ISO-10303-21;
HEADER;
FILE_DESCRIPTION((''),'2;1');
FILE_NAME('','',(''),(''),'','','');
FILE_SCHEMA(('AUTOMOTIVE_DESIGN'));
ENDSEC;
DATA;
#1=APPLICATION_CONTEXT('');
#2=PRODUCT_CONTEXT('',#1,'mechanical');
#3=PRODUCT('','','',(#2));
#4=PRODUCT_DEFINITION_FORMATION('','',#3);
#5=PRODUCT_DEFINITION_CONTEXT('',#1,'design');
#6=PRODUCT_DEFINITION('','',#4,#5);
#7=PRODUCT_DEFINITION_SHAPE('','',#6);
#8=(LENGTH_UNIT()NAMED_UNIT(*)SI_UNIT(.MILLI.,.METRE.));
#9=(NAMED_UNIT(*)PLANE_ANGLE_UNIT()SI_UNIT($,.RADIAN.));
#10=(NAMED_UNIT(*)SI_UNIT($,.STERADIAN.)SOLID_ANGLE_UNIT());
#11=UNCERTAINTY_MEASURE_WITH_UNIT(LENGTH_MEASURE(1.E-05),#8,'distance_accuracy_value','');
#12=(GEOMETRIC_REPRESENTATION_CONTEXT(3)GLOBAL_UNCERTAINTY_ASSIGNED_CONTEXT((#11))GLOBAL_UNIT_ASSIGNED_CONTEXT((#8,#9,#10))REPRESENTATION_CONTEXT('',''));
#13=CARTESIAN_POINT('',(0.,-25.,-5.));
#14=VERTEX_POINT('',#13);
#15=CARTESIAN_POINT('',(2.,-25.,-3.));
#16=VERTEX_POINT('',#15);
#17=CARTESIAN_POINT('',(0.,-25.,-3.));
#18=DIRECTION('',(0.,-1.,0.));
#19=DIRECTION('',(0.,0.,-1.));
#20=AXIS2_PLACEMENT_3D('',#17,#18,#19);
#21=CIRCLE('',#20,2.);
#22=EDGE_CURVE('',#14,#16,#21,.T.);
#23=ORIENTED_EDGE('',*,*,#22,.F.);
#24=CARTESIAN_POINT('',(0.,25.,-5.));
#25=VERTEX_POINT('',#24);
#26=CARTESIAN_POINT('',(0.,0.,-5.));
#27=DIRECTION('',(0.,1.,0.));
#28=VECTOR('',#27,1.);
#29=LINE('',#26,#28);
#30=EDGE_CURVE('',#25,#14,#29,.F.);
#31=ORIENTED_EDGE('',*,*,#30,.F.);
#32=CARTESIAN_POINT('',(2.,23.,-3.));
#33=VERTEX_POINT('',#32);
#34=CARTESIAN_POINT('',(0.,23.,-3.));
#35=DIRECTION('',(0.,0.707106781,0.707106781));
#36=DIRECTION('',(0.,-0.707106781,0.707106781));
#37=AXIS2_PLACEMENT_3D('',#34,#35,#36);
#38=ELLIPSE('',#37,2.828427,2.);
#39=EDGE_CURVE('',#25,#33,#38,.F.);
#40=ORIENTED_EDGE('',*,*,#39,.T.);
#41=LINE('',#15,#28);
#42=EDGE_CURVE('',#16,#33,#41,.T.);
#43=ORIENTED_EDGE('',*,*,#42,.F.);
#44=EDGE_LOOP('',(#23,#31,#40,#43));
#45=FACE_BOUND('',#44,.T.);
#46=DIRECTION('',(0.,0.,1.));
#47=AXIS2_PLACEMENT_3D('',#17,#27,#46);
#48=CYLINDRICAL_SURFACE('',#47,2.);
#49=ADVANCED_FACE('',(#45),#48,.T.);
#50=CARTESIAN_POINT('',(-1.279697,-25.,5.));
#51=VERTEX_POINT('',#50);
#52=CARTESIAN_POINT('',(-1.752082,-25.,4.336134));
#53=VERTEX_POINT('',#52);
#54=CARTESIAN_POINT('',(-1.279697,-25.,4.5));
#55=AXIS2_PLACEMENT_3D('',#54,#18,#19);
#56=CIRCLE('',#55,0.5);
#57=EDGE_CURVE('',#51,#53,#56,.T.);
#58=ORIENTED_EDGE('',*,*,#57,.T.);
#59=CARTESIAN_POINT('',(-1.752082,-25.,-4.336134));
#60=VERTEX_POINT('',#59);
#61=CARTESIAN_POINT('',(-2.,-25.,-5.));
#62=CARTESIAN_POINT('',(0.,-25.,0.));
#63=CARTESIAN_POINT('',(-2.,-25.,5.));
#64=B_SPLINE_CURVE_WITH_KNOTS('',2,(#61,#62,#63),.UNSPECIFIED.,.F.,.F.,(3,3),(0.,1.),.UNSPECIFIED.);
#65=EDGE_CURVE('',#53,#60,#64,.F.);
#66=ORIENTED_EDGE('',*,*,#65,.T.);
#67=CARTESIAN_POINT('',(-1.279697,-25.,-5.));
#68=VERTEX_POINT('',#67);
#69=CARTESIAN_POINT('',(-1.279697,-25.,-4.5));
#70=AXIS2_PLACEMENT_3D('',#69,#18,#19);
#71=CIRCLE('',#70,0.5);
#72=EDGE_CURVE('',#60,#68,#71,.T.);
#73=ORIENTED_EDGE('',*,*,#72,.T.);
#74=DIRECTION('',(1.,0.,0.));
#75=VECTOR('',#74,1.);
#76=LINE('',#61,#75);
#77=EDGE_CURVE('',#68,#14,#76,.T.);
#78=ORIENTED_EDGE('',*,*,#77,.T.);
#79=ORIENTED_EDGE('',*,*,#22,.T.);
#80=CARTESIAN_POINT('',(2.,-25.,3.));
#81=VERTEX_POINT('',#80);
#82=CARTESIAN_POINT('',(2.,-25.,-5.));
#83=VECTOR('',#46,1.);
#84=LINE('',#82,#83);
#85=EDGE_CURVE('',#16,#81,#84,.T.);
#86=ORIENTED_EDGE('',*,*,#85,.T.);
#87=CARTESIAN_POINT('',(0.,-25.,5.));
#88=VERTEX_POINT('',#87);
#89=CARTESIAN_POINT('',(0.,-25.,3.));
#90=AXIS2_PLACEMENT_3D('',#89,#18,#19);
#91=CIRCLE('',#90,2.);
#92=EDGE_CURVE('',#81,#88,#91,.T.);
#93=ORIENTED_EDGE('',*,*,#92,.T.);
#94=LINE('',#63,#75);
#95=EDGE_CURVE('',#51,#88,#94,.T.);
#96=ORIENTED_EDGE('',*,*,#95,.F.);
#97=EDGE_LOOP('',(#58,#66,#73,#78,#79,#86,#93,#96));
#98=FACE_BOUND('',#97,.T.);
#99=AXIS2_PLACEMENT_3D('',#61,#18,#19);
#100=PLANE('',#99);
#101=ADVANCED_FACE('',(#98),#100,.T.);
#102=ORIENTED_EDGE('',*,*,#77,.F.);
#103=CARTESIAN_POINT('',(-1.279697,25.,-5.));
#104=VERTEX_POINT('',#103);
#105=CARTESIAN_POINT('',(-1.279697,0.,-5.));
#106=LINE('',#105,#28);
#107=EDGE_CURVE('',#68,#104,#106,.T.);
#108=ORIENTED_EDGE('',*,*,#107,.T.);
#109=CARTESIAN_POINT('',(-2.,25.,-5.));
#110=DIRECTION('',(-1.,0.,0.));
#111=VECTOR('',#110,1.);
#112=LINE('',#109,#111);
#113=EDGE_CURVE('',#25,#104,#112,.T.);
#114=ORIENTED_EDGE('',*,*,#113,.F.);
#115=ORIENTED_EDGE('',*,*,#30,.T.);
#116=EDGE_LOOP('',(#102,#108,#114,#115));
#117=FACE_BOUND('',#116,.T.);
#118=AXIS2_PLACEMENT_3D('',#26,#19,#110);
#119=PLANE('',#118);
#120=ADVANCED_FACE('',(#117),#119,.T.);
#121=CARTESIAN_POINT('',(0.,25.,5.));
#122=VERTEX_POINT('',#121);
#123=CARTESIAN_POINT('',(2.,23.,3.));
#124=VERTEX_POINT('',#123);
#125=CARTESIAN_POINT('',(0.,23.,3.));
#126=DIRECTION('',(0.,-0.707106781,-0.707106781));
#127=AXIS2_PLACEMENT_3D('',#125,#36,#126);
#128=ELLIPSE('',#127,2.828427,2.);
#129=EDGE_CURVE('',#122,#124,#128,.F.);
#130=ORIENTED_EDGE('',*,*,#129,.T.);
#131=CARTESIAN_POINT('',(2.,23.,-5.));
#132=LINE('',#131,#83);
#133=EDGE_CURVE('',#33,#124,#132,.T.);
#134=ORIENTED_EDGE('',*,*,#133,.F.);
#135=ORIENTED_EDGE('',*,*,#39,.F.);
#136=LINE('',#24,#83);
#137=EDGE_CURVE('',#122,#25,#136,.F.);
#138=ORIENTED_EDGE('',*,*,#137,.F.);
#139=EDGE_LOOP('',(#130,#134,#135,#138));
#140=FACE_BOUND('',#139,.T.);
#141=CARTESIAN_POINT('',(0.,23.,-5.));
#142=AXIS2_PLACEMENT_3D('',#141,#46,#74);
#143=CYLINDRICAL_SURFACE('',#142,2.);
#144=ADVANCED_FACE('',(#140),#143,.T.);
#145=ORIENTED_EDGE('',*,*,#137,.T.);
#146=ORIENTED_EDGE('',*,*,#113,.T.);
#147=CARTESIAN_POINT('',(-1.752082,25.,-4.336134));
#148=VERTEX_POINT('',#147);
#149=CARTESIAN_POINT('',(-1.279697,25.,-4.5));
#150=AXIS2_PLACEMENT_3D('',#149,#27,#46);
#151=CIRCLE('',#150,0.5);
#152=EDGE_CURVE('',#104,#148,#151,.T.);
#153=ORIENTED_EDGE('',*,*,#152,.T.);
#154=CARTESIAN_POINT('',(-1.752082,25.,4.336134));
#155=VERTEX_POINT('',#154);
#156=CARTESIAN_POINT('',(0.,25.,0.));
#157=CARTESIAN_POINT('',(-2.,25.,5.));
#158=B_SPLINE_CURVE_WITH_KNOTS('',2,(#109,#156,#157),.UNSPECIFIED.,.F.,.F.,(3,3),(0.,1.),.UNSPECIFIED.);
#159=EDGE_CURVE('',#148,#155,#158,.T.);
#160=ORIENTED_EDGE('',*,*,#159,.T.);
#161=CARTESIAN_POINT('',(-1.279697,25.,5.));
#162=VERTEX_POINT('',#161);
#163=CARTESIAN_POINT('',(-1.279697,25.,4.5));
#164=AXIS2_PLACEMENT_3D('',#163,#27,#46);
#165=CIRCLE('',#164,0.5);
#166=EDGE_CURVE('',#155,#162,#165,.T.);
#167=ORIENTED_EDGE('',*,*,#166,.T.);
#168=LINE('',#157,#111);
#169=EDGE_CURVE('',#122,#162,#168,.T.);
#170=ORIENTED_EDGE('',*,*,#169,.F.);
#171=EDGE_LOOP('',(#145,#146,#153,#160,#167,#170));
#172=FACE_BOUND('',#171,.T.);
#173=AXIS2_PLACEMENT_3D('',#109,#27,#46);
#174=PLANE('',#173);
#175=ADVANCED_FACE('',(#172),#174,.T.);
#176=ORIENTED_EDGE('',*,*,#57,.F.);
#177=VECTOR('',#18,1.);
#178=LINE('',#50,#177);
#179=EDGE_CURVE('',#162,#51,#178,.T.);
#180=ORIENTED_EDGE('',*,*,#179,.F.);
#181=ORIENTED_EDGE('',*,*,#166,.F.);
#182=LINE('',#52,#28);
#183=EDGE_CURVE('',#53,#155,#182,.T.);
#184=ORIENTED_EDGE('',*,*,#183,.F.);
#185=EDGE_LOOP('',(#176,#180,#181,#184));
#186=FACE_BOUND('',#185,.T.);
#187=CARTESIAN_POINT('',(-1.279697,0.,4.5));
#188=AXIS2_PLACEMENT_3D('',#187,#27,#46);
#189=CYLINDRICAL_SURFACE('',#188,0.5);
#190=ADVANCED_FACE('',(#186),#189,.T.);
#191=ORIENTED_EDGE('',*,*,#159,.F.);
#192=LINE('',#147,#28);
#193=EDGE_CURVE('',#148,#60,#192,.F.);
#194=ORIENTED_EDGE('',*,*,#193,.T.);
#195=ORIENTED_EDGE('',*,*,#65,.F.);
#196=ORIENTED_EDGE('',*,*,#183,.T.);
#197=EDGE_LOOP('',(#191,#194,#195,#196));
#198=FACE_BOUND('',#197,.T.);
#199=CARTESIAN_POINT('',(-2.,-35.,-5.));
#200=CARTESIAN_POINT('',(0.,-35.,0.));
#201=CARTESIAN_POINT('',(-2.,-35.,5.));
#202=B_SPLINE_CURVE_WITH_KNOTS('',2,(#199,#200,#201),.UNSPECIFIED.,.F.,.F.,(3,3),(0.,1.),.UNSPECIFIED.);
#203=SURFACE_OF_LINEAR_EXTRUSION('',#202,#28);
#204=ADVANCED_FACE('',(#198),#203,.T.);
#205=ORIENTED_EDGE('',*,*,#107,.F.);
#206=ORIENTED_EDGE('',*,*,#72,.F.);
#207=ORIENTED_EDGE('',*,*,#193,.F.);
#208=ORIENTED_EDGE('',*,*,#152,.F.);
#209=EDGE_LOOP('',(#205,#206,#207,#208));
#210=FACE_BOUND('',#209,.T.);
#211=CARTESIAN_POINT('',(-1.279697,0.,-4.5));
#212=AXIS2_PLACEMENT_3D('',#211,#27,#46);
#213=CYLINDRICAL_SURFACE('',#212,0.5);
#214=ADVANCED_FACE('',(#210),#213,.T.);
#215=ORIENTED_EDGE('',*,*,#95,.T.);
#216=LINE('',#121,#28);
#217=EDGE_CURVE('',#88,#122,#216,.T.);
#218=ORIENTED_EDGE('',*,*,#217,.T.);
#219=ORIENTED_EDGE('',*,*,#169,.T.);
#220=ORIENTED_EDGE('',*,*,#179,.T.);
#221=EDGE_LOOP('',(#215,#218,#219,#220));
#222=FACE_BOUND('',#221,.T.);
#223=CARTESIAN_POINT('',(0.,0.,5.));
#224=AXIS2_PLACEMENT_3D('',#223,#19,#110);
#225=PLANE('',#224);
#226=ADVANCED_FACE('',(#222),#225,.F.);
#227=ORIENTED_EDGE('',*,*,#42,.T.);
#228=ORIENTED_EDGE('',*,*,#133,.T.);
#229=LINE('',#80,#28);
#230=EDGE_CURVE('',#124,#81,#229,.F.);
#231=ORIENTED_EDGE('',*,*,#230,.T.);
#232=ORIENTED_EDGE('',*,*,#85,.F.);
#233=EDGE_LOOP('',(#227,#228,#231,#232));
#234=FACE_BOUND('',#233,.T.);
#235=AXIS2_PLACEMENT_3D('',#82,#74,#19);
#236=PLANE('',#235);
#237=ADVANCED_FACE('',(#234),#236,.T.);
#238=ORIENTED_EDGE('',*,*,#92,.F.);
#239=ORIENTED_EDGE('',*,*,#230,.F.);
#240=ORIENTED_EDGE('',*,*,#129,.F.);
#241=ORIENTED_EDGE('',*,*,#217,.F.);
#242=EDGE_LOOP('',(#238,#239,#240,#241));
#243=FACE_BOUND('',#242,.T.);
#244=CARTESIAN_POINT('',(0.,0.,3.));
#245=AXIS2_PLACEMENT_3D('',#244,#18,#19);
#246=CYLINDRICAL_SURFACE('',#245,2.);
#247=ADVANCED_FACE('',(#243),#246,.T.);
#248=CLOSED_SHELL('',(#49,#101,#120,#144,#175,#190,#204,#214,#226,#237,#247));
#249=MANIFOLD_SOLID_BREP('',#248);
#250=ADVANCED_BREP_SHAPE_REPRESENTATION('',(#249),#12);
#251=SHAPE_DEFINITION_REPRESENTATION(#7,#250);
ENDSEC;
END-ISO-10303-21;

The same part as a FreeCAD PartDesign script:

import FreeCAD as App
import Part
import Sketcher
from FreeCAD import Vector


def edges_at(feature, points):
    """Names of the edges that pass closest to the given points."""
    edges = feature.Shape.Edges
    near = lambda p: min(range(len(edges)), key=lambda i: edges[i].distToShape(Part.Vertex(*p))[0])
    return sorted({f"Edge{near(p) + 1}" for p in points})


def add_polygon(sketch, points):
    """Adds a closed chain of lines whose ends are joined by coincident constraints."""
    first, n = sketch.GeometryCount, len(points)
    for a, b in zip(points, points[1:] + points[:1]):
        sketch.addGeometry(Part.LineSegment(App.Vector(*a, 0), App.Vector(*b, 0)), False)
    for i in range(n):
        sketch.addConstraint(Sketcher.Constraint("Coincident", first + i, 2, first + (i + 1) % n, 1))

doc = App.newDocument("Part")
body = doc.addObject("PartDesign::Body", "Body")

sketch1 = doc.addObject("Sketcher::SketchObject", "Sketch")
body.addObject(sketch1)
sketch1.AttachmentSupport = (doc.XY_Plane, [""])
sketch1.MapMode = "FlatFace"
add_polygon(sketch1, [(-2, 25), (-2, -25), (2, -25), (2, 25)])
sketch1.addConstraint([
    Sketcher.Constraint("Vertical", 0),
    Sketcher.Constraint("Horizontal", 1),
    Sketcher.Constraint("Vertical", 2),
    Sketcher.Constraint("Horizontal", 3),
    Sketcher.Constraint("Symmetric", 0, 2, 2, 2, -1, 1),
    Sketcher.Constraint("DistanceX", 1, 1, 1, 2, 4.0),
    Sketcher.Constraint("DistanceY", 0, 2, 0, 1, 50.0),
])
pad1 = doc.addObject("PartDesign::Pad", "Pad")
body.addObject(pad1)
pad1.Profile = sketch1
pad1.Type = "TwoLengths"
pad1.Length = 5
pad1.Length2 = 5

sketch2 = doc.addObject("Sketcher::SketchObject", "Sketch001")
body.addObject(sketch2)
sketch2.AttachmentSupport = (doc.XZ_Plane, [""])
sketch2.MapMode = "FlatFace"
sketch2.AttachmentOffset = App.Placement(Vector(0, 0, -25), App.Rotation())
sketch2.addGeometry([
    Part.LineSegment(Vector(-2, -5, 0), Vector(-2, 5, 0)),
    Part.BSplineCurve([Vector(-2, 5, 0), Vector(0, 0, 0), Vector(-2, -5, 0)], [3, 3], [0.5, 1.5], False, 2, [1, 1, 1], False),
], False)
sketch2.addConstraint([
    Sketcher.Constraint("Block", 1),
    Sketcher.Constraint("Coincident", 0, 1, 1, 2),
    Sketcher.Constraint("Coincident", 1, 1, 0, 2),
])
pocket1 = doc.addObject("PartDesign::Pocket", "Pocket")
body.addObject(pocket1)
pocket1.Profile = sketch2
pocket1.Length = 60
pocket1.Reversed = True
doc.recompute()

fillet = doc.addObject("PartDesign::Fillet", "Fillet")
body.addObject(fillet)
fillet.Base = (pocket1, edges_at(pocket1, [(2, 0, 5), (2, 0, -5), (2, 25, 0)]))
fillet.Radius = 2
doc.recompute()

fillet2 = doc.addObject("PartDesign::Fillet", "Fillet001")
body.addObject(fillet2)
fillet2.Base = (fillet, edges_at(fillet, [(-2, 0, -5), (-2, 0, 5)]))
fillet2.Radius = 0.5

doc.recompute()
